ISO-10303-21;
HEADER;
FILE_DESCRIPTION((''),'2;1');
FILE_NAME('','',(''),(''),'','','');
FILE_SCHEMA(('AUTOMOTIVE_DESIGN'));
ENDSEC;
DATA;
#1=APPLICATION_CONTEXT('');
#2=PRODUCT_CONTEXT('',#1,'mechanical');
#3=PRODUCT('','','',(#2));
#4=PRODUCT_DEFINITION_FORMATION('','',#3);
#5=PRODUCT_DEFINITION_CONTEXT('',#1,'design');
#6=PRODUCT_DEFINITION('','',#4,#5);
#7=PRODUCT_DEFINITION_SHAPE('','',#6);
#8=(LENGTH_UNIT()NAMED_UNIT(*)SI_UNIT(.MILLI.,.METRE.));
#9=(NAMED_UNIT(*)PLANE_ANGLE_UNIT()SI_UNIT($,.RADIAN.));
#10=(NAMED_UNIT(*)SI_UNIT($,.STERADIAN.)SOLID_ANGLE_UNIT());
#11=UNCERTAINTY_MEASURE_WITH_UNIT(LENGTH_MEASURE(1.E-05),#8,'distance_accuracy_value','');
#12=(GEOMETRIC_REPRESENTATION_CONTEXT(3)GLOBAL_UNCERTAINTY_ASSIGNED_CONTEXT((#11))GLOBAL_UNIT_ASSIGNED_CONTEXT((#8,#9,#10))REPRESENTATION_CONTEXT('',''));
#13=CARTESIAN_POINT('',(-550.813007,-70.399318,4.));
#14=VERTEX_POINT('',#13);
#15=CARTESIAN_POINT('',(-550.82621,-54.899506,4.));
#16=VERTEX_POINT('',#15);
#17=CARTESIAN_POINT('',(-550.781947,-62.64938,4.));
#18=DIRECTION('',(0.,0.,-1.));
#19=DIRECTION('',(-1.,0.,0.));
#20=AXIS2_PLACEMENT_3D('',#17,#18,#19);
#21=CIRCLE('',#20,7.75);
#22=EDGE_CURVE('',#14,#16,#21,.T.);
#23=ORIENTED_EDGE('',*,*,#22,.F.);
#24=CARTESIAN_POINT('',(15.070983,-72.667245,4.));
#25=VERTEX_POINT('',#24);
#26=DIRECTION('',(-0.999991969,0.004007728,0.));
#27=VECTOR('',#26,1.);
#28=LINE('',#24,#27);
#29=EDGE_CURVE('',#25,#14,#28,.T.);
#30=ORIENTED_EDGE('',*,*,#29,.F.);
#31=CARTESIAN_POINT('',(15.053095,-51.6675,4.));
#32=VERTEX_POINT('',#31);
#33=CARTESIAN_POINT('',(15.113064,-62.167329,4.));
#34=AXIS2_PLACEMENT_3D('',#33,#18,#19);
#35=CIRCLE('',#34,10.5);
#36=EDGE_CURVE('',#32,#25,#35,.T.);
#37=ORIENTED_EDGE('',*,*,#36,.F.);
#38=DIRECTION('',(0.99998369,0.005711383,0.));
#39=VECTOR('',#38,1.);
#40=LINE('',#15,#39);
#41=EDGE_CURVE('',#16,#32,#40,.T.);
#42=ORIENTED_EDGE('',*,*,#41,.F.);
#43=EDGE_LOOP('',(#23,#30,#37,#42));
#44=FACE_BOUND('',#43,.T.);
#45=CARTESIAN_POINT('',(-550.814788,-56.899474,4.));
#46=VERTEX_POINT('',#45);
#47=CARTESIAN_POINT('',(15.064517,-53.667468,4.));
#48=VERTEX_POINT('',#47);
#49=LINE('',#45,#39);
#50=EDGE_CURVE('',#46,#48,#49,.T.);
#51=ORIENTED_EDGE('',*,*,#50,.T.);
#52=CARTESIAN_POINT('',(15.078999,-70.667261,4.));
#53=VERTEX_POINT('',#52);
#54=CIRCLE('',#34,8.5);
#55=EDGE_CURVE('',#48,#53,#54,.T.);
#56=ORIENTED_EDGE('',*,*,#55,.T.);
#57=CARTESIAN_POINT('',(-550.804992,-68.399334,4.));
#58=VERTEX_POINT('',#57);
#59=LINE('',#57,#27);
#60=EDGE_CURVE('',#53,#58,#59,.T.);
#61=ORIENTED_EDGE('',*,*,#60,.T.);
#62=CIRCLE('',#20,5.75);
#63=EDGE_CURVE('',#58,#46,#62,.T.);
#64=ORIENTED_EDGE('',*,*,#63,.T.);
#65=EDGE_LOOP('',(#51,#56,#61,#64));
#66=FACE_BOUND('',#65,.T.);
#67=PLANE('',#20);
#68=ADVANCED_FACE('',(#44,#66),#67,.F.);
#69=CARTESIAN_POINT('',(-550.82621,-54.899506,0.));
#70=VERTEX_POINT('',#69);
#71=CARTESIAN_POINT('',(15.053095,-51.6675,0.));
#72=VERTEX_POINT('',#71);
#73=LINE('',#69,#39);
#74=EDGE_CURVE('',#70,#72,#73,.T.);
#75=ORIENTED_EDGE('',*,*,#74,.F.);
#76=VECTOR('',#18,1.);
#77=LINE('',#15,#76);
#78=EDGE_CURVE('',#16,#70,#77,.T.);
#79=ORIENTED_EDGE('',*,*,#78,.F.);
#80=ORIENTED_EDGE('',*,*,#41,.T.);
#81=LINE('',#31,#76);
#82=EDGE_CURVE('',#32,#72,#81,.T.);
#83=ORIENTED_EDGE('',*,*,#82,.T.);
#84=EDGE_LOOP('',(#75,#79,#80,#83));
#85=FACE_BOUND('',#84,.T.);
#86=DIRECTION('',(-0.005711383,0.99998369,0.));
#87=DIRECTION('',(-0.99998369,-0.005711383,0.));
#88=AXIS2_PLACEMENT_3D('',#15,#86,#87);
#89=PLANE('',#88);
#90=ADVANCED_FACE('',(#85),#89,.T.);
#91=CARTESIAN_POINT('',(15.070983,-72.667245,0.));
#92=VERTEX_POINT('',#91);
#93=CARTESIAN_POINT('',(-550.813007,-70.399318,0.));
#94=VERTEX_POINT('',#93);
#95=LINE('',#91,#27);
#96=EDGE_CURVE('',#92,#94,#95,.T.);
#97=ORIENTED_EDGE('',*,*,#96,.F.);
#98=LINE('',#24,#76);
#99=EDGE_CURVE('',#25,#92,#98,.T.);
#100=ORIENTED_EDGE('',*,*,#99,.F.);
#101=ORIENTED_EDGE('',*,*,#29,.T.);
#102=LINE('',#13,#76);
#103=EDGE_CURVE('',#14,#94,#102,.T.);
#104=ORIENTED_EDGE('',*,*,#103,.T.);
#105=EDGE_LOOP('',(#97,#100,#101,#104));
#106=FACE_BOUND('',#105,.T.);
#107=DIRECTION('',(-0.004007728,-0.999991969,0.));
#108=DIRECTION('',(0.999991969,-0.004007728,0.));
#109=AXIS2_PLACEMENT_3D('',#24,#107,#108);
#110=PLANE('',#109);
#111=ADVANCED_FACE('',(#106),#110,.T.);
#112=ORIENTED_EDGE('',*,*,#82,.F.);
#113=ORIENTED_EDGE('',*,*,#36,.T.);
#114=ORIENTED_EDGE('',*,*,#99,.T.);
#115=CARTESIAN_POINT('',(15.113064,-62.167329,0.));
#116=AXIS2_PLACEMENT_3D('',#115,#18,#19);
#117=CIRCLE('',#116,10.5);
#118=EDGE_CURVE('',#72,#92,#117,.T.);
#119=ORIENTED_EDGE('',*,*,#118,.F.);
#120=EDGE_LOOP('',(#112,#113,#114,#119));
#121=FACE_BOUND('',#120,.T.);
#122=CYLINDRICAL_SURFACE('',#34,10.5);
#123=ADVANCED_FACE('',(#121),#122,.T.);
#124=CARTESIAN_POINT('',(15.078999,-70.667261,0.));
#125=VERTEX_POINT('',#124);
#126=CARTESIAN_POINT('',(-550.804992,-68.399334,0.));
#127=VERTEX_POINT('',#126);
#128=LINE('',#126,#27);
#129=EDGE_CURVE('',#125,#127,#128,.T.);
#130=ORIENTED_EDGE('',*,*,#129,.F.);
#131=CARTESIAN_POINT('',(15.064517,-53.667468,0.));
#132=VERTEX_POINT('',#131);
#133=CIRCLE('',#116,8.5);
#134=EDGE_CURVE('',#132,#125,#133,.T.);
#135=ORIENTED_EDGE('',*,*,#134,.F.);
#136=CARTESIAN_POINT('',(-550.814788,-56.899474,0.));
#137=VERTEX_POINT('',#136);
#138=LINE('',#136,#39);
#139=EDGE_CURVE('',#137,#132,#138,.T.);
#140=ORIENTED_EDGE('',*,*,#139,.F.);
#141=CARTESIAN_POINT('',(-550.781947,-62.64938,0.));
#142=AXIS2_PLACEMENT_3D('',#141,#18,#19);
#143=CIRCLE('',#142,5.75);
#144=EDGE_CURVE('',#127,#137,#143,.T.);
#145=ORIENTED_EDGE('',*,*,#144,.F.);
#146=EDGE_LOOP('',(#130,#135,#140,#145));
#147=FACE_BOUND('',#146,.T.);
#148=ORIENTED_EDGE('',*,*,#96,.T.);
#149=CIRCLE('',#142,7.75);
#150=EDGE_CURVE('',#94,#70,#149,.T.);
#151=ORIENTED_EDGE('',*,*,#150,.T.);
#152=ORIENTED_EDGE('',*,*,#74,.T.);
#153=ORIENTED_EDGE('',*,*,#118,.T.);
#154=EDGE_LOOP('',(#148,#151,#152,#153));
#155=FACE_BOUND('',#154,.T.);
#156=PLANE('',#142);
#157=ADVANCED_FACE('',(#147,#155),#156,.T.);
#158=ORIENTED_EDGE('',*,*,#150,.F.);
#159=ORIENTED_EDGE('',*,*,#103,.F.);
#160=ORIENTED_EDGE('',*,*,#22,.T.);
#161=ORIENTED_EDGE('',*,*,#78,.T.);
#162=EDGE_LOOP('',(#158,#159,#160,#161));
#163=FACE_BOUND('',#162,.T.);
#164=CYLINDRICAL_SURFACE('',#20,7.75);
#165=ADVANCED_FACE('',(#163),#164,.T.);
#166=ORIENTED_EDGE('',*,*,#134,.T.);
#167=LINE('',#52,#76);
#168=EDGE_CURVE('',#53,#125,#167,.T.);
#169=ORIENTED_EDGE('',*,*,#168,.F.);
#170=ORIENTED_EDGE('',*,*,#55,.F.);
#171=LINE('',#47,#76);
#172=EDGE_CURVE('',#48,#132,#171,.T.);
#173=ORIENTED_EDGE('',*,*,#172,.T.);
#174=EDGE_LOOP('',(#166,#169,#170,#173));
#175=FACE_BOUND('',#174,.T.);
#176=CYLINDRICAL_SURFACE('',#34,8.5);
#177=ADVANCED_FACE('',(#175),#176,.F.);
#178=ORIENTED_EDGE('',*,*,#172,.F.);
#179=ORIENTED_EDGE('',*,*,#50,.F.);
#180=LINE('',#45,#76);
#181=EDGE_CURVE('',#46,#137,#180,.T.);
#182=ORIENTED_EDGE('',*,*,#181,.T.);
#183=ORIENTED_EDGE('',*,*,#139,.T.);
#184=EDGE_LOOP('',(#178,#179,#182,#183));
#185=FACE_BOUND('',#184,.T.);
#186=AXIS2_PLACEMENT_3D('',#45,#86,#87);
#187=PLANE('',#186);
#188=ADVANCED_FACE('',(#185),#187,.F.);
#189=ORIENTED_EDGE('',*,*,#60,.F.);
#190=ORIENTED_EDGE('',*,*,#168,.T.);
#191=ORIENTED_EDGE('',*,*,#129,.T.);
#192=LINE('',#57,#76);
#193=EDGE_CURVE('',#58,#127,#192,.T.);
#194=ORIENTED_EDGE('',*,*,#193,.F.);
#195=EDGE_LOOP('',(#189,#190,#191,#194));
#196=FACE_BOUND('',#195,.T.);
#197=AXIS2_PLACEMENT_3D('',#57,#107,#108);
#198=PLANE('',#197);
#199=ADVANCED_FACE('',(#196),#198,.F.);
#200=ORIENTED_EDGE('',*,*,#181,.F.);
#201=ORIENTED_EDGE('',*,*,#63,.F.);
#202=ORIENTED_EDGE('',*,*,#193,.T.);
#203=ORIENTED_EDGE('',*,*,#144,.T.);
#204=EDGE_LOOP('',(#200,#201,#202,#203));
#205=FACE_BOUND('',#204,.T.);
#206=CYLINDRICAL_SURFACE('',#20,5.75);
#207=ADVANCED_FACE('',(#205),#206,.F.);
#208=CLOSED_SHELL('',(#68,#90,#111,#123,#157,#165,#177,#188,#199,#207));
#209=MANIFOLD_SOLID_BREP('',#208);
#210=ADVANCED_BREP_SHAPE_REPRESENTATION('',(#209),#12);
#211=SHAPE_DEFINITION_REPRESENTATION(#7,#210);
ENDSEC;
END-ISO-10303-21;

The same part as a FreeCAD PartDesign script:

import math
import FreeCAD as App
import Part
import Sketcher

V = App.Vector
Q = App.Units.Quantity

doc = App.newDocument("Part")
body = doc.addObject("PartDesign::Body", "Body")

sketch1 = doc.addObject("Sketcher::SketchObject", "Sketch")
body.addObject(sketch1)
sketch1.AttachmentSupport = (doc.XY_Plane, [""])
sketch1.MapMode = "FlatFace"
sketch1.addGeometry([
    Part.LineSegment(V(15, -52, 0), V(-551, -55, 0)),
    Part.ArcOfCircle(Part.Circle(V(-551, -63, 0), V(0, 0, 1), 8), math.radians(90), math.radians(270)),
    Part.LineSegment(V(-551, -70, 0), V(15, -73, 0)),
    Part.ArcOfCircle(Part.Circle(V(15, -62, 0), V(0, 0, 1), 10), math.radians(-90), math.radians(90)),
    Part.LineSegment(V(-551, -57, 0), V(15, -54, 0)),
    Part.ArcOfCircle(Part.Circle(V(15, -62, 0), V(0, 0, 1), 8), math.radians(-90), math.radians(90)),
    Part.LineSegment(V(15, -71, 0), V(-551, -68, 0)),
    Part.ArcOfCircle(Part.Circle(V(-551, -63, 0), V(0, 0, 1), 6), math.radians(90), math.radians(270)),
], False)
sketch1.addConstraint([
    Sketcher.Constraint("Tangent", 0, 2, 1, 1),
    Sketcher.Constraint("Tangent", 1, 2, 2, 1),
    Sketcher.Constraint("Tangent", 2, 2, 3, 1),
    Sketcher.Constraint("Tangent", 3, 2, 0, 1),
    Sketcher.Constraint("Tangent", 4, 2, 5, 2),
    Sketcher.Constraint("Tangent", 5, 1, 6, 1),
    Sketcher.Constraint("Tangent", 6, 2, 7, 2),
    Sketcher.Constraint("Tangent", 7, 1, 4, 1),
    Sketcher.Constraint("Coincident", 5, 3, 3, 3),
    Sketcher.Constraint("Coincident", 7, 3, 1, 3),
    Sketcher.Constraint("Parallel", 0, 4),
    Sketcher.Constraint("Radius", 3, Q("10.5 mm")),
    Sketcher.Constraint("Radius", 5, Q("8.5 mm")),
    Sketcher.Constraint("Radius", 1, Q("7.75 mm")),
    Sketcher.Constraint("DistanceX", -1, 1, 5, 1, Q("15.078999 mm")),
    Sketcher.Constraint("DistanceY", 3, 2, -1, 1, Q("51.6675 mm")),
    Sketcher.Constraint("DistanceY", 1, 3, -1, 1, Q("62.64938 mm")),
    Sketcher.Constraint("DistanceX", 0, 2, -1, 1, Q("550.82621 mm")),
])
pad1 = doc.addObject("PartDesign::Pad", "Pad")
body.addObject(pad1)
pad1.Profile = sketch1
pad1.Length = 4

doc.recompute()
